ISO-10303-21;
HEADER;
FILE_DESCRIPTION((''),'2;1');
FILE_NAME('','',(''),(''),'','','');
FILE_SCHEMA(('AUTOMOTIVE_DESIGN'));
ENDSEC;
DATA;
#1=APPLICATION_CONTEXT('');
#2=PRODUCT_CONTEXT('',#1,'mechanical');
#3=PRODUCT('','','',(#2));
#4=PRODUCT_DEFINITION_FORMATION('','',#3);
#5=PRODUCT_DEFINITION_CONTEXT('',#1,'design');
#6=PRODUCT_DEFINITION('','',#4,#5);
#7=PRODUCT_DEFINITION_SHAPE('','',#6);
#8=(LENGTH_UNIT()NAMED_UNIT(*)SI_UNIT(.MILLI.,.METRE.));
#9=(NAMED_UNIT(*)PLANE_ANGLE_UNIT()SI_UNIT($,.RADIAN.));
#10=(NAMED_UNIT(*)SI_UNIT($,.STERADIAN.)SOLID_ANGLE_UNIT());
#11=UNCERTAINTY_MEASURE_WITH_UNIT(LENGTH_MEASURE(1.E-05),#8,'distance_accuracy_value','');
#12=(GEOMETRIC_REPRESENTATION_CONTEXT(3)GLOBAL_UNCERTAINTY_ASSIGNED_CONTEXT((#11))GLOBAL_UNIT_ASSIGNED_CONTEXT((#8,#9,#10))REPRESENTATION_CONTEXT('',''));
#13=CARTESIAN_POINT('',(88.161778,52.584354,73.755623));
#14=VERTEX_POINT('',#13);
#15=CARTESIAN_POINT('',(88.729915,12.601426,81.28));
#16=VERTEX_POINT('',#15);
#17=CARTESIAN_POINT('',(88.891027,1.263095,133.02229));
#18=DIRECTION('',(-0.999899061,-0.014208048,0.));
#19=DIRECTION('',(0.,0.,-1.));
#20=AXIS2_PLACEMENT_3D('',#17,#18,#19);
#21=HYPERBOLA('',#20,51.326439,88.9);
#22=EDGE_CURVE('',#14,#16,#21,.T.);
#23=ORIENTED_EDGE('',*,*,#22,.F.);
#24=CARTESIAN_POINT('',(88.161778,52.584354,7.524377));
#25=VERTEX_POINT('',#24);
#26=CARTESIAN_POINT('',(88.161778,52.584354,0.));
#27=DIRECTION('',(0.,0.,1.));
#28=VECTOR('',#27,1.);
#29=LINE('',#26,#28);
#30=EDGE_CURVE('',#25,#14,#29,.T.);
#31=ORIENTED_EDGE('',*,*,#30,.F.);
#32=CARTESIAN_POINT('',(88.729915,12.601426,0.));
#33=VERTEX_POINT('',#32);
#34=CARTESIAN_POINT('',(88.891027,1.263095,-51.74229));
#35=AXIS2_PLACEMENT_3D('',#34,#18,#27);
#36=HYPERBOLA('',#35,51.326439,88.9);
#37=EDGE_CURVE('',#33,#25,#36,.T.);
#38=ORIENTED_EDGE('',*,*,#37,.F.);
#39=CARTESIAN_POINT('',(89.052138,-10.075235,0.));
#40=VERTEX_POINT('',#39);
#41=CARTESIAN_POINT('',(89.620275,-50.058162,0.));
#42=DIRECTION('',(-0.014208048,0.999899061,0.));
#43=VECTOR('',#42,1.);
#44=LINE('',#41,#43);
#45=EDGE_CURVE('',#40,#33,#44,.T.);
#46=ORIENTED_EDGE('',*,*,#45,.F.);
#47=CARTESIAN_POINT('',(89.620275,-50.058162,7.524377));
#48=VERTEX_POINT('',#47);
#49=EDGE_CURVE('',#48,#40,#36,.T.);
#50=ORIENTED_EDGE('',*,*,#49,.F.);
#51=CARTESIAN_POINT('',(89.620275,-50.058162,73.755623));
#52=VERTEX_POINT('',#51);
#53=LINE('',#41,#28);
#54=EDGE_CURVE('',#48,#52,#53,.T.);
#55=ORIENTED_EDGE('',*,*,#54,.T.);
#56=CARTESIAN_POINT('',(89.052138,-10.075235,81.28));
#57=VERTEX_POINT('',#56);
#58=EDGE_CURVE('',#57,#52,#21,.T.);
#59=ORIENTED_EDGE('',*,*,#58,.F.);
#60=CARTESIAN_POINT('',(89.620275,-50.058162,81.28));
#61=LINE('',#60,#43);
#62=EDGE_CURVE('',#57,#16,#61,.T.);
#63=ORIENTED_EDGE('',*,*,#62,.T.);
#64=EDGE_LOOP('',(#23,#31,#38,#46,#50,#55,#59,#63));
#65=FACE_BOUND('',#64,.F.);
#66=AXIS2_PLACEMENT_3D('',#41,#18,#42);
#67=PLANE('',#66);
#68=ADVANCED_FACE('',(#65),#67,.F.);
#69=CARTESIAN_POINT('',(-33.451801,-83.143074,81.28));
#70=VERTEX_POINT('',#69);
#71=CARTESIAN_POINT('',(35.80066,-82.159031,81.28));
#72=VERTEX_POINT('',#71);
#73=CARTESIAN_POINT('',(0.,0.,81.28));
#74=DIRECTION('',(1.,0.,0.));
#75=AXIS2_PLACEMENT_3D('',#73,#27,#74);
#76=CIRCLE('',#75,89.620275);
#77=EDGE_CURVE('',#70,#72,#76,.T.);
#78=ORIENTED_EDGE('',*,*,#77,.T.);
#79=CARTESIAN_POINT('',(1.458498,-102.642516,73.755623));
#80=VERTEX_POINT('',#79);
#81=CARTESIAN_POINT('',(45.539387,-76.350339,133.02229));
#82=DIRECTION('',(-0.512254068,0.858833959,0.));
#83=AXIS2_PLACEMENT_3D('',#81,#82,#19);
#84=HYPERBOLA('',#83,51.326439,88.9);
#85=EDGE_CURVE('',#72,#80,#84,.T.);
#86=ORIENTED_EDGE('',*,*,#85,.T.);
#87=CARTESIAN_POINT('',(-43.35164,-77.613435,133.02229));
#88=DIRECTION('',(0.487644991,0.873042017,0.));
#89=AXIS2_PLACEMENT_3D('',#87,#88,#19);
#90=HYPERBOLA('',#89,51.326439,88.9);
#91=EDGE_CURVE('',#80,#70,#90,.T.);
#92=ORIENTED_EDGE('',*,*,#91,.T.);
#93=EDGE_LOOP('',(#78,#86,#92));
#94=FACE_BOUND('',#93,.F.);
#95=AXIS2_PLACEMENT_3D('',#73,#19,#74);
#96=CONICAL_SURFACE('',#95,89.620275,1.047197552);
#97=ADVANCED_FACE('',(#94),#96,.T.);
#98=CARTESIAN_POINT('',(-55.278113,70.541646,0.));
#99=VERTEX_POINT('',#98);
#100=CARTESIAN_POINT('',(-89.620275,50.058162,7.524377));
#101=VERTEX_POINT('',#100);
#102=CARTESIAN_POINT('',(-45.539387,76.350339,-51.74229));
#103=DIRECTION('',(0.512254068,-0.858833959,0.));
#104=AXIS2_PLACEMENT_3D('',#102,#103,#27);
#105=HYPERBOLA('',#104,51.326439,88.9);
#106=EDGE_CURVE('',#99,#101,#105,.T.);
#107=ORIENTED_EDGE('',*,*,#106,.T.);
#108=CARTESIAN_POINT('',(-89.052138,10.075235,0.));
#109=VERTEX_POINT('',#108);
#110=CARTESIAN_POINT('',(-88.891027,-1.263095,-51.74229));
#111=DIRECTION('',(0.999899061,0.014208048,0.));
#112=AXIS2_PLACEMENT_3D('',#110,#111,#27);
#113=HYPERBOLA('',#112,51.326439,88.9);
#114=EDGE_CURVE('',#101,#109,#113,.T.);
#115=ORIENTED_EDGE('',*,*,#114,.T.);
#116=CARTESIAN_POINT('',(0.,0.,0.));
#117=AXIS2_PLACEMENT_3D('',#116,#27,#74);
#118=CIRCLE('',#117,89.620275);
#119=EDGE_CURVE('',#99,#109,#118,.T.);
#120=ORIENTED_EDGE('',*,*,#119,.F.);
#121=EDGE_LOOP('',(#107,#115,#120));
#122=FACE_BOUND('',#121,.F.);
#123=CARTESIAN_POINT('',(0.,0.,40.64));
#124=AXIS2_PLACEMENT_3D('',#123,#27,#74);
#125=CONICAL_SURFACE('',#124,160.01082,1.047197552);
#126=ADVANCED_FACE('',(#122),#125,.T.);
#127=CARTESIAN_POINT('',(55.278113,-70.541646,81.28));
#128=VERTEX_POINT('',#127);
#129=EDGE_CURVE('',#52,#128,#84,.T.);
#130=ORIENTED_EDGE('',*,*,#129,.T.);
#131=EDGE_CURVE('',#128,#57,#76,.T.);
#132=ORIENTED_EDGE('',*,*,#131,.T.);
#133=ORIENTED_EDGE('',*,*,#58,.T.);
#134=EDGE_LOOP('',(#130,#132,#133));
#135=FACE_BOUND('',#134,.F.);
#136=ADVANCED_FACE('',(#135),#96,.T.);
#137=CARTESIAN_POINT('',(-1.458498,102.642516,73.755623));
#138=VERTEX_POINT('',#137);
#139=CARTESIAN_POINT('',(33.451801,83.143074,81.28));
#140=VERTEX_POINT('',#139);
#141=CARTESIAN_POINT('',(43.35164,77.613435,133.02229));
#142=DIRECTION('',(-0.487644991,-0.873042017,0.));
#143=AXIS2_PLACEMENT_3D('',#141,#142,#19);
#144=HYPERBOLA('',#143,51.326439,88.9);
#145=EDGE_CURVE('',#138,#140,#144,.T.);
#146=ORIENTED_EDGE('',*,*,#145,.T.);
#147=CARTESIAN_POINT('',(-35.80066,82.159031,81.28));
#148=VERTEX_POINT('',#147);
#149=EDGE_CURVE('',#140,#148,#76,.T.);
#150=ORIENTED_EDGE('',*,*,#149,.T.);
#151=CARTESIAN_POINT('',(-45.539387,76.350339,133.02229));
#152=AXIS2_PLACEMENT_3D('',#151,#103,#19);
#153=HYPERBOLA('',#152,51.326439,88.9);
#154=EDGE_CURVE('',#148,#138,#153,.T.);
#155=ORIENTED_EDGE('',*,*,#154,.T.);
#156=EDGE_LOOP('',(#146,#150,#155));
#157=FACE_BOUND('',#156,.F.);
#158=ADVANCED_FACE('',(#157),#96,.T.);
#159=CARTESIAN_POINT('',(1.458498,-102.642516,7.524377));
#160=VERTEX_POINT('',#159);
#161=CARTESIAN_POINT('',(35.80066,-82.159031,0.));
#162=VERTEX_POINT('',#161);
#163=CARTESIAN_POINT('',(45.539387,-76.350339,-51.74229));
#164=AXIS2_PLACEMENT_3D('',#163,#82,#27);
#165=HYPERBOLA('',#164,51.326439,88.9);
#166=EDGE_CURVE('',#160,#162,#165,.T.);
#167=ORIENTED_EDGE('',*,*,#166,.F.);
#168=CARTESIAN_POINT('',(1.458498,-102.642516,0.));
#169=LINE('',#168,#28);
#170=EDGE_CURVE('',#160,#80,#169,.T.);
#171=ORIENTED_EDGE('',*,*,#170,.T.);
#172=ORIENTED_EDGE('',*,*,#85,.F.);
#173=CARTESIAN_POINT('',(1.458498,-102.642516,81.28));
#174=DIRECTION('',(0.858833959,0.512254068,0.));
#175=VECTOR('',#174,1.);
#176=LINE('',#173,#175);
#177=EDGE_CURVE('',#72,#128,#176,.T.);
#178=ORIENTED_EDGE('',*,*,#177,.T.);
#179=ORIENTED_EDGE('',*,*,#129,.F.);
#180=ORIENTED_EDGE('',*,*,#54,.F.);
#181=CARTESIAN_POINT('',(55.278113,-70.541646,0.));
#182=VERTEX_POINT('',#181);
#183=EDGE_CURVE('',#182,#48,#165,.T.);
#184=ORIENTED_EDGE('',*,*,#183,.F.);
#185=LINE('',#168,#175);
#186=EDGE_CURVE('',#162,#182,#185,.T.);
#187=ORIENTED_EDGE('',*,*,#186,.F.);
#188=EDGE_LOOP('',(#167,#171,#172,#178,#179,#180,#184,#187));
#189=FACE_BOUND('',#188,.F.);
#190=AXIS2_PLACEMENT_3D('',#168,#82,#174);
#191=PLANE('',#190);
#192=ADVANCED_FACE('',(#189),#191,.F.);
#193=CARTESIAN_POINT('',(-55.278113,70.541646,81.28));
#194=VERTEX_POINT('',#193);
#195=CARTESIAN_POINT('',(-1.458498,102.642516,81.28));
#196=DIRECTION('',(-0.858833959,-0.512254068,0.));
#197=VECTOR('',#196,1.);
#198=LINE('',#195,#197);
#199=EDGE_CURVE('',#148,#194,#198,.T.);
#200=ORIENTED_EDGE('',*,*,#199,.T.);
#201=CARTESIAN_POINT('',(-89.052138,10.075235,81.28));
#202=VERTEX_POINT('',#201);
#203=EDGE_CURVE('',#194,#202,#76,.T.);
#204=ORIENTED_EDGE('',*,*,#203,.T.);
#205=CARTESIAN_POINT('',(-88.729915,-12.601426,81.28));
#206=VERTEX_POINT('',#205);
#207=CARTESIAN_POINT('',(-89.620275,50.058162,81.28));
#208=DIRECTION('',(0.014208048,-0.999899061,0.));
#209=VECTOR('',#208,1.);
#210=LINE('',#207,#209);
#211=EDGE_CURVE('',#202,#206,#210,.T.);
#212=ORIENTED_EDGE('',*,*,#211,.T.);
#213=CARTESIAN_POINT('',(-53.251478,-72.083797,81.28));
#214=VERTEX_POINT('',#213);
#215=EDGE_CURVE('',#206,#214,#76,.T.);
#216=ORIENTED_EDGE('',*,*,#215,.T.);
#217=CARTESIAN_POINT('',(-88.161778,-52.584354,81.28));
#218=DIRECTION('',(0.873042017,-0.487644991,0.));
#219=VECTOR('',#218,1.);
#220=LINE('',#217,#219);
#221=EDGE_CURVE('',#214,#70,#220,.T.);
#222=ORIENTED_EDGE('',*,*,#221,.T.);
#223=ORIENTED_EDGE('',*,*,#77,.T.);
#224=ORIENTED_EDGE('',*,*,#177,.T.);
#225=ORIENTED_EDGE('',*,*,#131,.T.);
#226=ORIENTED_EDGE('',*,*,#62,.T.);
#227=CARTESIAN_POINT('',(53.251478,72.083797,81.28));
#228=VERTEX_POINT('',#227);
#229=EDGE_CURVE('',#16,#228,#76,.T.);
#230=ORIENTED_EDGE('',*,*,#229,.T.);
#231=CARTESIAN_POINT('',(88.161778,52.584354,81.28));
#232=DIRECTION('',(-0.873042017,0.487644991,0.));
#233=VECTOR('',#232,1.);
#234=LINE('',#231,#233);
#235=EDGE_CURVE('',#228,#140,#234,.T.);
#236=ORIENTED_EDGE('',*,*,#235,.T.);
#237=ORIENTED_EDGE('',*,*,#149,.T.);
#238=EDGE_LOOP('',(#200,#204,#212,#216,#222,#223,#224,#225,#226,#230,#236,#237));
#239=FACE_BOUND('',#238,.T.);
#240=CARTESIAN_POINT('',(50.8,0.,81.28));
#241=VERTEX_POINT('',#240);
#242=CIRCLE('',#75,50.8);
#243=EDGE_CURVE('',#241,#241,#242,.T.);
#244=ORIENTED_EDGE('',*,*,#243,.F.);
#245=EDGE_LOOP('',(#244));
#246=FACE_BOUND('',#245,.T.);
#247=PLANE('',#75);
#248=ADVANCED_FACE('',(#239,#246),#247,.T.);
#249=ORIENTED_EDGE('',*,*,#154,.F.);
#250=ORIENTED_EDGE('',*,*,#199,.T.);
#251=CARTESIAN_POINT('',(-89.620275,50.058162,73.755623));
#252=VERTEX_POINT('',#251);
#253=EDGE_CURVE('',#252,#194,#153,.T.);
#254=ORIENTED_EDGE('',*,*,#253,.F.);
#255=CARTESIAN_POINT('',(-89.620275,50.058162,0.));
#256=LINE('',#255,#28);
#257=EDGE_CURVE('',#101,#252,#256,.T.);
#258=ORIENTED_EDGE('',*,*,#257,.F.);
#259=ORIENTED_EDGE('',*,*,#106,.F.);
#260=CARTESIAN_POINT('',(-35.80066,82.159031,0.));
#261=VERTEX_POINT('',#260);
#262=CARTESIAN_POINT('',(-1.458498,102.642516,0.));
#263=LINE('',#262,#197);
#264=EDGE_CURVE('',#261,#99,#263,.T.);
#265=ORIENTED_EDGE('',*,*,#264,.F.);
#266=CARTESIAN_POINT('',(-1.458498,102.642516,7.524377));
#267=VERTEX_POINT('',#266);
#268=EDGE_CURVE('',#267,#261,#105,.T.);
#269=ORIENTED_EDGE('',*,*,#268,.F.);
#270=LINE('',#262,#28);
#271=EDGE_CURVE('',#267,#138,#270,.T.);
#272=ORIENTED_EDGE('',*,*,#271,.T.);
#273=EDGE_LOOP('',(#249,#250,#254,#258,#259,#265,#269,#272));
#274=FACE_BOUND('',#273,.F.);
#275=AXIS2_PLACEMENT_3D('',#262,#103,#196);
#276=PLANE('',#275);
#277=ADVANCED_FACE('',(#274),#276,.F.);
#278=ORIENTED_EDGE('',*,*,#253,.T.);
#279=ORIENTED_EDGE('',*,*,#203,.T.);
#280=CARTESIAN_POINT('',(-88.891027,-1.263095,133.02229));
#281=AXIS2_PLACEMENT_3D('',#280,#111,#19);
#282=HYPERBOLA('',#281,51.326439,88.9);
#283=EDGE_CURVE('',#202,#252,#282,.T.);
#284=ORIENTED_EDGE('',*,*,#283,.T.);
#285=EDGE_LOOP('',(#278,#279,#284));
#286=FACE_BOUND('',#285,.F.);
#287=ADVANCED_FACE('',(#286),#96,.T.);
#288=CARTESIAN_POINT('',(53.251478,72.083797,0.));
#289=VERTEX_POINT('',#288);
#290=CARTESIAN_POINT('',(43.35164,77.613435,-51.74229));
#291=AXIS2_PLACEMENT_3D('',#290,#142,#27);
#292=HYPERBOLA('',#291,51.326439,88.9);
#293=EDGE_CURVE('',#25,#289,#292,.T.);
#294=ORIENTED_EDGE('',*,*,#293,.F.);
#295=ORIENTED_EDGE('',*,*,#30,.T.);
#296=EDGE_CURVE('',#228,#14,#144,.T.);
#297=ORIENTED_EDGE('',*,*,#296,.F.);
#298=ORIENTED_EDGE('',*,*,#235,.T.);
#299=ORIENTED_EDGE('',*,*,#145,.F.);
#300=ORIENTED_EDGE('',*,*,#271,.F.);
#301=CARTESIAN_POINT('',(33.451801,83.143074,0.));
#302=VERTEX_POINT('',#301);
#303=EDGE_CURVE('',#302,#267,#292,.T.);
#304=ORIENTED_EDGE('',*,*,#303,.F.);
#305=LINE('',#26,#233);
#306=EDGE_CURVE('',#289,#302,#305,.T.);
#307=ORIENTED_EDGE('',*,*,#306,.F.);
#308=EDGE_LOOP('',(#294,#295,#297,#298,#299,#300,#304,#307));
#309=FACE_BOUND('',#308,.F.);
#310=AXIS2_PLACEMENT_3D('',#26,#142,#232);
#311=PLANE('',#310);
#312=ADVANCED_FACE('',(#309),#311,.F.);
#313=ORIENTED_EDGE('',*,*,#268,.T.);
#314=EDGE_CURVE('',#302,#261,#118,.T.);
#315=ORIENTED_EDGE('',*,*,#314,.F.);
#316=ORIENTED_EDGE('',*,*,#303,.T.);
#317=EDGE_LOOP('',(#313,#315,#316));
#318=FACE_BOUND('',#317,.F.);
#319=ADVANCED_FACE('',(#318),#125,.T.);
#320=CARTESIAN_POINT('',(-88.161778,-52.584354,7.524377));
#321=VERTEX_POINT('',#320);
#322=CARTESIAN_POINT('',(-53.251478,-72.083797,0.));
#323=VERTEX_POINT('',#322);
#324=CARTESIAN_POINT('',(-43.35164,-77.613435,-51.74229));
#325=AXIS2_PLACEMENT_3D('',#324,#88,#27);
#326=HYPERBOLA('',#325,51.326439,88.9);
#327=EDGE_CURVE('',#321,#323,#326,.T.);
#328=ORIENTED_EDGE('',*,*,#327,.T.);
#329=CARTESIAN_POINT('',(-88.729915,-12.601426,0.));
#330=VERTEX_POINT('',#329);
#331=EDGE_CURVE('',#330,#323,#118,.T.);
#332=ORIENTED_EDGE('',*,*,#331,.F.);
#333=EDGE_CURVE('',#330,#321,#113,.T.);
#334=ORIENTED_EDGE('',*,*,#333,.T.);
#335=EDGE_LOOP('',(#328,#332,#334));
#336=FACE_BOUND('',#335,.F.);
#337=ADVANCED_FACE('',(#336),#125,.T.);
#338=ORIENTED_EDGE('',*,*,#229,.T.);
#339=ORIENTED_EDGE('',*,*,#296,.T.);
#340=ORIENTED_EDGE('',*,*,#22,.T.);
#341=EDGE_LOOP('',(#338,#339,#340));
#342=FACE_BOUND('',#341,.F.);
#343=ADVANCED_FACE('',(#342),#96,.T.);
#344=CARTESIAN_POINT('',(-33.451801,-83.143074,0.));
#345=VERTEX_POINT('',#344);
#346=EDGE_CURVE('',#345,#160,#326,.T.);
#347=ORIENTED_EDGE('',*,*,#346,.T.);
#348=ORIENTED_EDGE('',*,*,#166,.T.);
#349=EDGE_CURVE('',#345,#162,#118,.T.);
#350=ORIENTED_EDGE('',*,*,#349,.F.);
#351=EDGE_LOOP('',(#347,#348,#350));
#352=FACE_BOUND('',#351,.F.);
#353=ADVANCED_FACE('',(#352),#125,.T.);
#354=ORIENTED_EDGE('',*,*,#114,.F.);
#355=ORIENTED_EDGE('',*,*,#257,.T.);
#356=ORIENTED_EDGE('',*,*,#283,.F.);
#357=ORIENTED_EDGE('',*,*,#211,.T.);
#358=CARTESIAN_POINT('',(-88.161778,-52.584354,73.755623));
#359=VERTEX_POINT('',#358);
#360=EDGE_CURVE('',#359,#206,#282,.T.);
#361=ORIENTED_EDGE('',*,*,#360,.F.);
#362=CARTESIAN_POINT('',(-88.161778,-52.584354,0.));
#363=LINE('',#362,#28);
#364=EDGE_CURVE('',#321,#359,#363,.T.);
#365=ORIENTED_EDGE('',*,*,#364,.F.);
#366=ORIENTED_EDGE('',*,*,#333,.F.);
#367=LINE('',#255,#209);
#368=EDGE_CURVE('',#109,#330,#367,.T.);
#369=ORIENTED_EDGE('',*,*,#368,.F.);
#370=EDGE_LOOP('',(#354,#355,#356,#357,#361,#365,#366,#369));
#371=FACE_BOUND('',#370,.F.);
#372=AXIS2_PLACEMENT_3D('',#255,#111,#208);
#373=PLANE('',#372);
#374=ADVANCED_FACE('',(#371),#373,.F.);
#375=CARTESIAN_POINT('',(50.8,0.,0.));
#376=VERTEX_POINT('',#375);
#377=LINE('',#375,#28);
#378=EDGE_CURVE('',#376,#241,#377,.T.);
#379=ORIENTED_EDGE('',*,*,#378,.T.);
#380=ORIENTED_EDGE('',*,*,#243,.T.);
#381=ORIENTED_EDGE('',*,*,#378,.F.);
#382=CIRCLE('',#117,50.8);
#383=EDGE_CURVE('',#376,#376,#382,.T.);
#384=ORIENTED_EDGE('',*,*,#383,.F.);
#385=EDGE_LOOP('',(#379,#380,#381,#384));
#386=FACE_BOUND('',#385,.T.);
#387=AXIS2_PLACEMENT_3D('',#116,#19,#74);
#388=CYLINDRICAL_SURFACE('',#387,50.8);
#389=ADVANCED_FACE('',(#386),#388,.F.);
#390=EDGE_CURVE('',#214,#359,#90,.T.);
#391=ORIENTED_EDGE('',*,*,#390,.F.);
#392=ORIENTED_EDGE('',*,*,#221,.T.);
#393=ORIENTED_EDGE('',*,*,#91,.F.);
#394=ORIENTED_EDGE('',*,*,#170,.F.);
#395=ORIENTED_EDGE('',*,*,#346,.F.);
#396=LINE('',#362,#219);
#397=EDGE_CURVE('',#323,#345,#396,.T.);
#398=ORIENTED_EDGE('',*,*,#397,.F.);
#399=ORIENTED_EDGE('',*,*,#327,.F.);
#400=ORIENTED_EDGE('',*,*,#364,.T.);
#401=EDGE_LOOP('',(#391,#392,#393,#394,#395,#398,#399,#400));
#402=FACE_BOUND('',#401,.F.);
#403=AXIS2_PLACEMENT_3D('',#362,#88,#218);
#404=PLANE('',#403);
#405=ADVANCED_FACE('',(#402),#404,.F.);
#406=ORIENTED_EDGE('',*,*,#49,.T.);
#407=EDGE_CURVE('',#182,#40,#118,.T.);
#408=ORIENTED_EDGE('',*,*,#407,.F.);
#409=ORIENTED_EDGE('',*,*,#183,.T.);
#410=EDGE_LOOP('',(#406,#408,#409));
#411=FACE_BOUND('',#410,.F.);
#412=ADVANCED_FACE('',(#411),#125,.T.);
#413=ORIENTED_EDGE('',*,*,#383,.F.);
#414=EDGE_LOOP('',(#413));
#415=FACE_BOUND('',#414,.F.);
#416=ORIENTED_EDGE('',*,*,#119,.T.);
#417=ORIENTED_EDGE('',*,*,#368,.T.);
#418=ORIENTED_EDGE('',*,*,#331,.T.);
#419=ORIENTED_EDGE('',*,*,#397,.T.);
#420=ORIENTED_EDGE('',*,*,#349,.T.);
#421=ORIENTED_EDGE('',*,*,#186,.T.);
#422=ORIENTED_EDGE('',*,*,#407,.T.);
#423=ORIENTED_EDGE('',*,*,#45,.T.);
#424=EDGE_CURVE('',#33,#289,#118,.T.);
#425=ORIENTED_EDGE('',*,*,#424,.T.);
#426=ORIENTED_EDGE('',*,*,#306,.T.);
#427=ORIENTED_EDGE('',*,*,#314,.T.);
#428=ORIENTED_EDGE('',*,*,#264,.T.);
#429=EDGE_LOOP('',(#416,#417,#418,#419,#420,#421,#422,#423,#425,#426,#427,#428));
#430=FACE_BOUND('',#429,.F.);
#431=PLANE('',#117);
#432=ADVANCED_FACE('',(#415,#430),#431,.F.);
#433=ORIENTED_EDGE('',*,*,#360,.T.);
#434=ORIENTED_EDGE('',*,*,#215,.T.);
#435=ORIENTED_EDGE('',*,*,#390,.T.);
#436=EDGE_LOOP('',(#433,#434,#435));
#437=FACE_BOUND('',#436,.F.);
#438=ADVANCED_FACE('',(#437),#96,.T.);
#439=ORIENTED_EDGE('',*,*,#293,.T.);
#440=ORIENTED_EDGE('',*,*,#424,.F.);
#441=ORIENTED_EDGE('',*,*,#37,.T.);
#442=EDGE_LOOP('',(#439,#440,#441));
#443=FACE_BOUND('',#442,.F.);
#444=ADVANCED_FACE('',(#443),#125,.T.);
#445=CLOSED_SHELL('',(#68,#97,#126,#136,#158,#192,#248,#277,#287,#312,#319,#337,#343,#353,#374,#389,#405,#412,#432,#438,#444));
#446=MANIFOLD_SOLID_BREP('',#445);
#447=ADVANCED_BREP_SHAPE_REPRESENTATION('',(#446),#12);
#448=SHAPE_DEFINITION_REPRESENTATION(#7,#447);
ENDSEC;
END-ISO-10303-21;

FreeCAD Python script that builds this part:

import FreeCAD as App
import Part
import Sketcher

V = App.Vector
Q = App.Units.Quantity


def add_polygon(sketch, points):
    """Adds a closed chain of lines whose ends are joined by coincident constraints."""
    first, n = sketch.GeometryCount, len(points)
    for a, b in zip(points, points[1:] + points[:1]):
        sketch.addGeometry(Part.LineSegment(App.Vector(*a, 0), App.Vector(*b, 0)), False)
    for i in range(n):
        sketch.addConstraint(Sketcher.Constraint("Coincident", first + i, 2, first + (i + 1) % n, 1))

doc = App.newDocument("Part")
body = doc.addObject("PartDesign::Body", "Body")

sketch1 = doc.addObject("Sketcher::SketchObject", "Sketch")
body.addObject(sketch1)
sketch1.AttachmentSupport = (doc.XY_Plane, [""])
sketch1.MapMode = "FlatFace"
add_polygon(sketch1, [(88.161778, 52.584354), (-1.458498, 102.642516), (-89.620275, 50.058162), (-88.161778, -52.584354), (1.458498, -102.642516), (89.620275, -50.058162)])
sketch1.addGeometry(Part.Circle(V(0, 0, 0), V(0, 0, 1), 50.8), False)
sketch1.addConstraint(Sketcher.Constraint("Coincident", 6, 3, -1, 1))
sketch1.addConstraint(Sketcher.Constraint("Symmetric", 0, 2, 3, 2, -1, 1))
sketch1.addConstraint(Sketcher.Constraint("Symmetric", 1, 2, 4, 2, -1, 1))
sketch1.addConstraint(Sketcher.Constraint("Symmetric", 2, 2, 5, 2, -1, 1))
sketch1.addConstraint(Sketcher.Constraint("Equal", 0, 1))
sketch1.addConstraint(Sketcher.Constraint("Equal", 1, 2))
sketch1.addConstraint(Sketcher.Constraint("Diameter", 6, Q("4 in")))
sketch1.addConstraint(Sketcher.Constraint("DistanceX", 0, 2, -1, 1, Q("1.458498 mm")))
sketch1.addConstraint(Sketcher.Constraint("Distance", 0, Q("102.652878 mm")))
sketch1.addConstraint(Sketcher.Constraint("DistanceX", 2, 2, -1, 1, Q("88.161778 mm")))
sketch1.addConstraint(Sketcher.Constraint("DistanceY", 2, 2, 0, 2, Q("155.22687 mm")))
pad1 = doc.addObject("PartDesign::Pad", "Pad")
body.addObject(pad1)
pad1.Profile = sketch1
pad1.Length = Q("3.2 in")

sketch2 = doc.addObject("Sketcher::SketchObject", "Sketch001")
body.addObject(sketch2)
sketch2.AttachmentSupport = (doc.XZ_Plane, [""])
sketch2.MapMode = "FlatFace"
add_polygon(sketch2, [(161.132823, 41.287788), (157.832084, 81.28), (89.620275, 81.28), (160.01082, 40.64)])
add_polygon(sketch2, [(161.245103, 41.352613), (161.132823, 41.287788), (161.186287, 40.64)])
add_polygon(sketch2, [(161.132823, 39.992212), (160.01082, 40.64), (89.620275, 0), (157.832084, 0)])
add_polygon(sketch2, [(161.245103, 39.927387), (161.186287, 40.64), (161.132823, 39.992212)])
sketch2.addConstraint(Sketcher.Constraint("Horizontal", 1))
sketch2.addConstraint(Sketcher.Constraint("Horizontal", 9))
sketch2.addConstraint(Sketcher.Constraint("Coincident", 4, 2, 3, 2))
sketch2.addConstraint(Sketcher.Constraint("Coincident", 7, 2, 2, 2))
sketch2.addConstraint(Sketcher.Constraint("Coincident", 11, 2, 5, 2))
sketch2.addConstraint(Sketcher.Constraint("Coincident", 12, 2, 10, 2))
sketch2.addConstraint(Sketcher.Constraint("PointOnObject", 8, 2, -1))
sketch2.addConstraint(Sketcher.Constraint("Parallel", 3, 4))
sketch2.addConstraint(Sketcher.Constraint("Parallel", 0, 5))
sketch2.addConstraint(Sketcher.Constraint("Parallel", 2, 7))
sketch2.addConstraint(Sketcher.Constraint("Parallel", 4, 8))
sketch2.addConstraint(Sketcher.Constraint("Parallel", 6, 10))
sketch2.addConstraint(Sketcher.Constraint("Parallel", 0, 11))
sketch2.addConstraint(Sketcher.Constraint("Parallel", 10, 12))
sketch2.addConstraint(Sketcher.Constraint("Parallel", 7, 13))
sketch2.addConstraint(Sketcher.Constraint("Horizontal", 2, 2, 5, 2))
sketch2.addConstraint(Sketcher.Constraint("Vertical", 1, 2, 8, 2))
sketch2.addConstraint(Sketcher.Constraint("Vertical", 0, 2, 9, 2))
sketch2.addConstraint(Sketcher.Constraint("Equal", 2, 8))
sketch2.addConstraint(Sketcher.Constraint("Angle", 2, Q("-30 deg")))
sketch2.addConstraint(Sketcher.Constraint("Distance", 2, Q("3.2 in")))
sketch2.addConstraint(Sketcher.Constraint("DistanceX", 1, 2, 1, 1, Q("68.211809 mm")))
sketch2.addConstraint(Sketcher.Constraint("DistanceY", 13, 2, 3, 2, Q("1.360401 mm")))
sketch2.addConstraint(Sketcher.Constraint("DistanceX", -1, 1, 2, 2, Q("160.01082 mm")))
groove = doc.addObject("PartDesign::Groove", "Groove")
body.addObject(groove)
groove.Profile = sketch2
groove.ReferenceAxis = (sketch2, ["V_Axis"])
groove.Angle = 360

doc.recompute()
